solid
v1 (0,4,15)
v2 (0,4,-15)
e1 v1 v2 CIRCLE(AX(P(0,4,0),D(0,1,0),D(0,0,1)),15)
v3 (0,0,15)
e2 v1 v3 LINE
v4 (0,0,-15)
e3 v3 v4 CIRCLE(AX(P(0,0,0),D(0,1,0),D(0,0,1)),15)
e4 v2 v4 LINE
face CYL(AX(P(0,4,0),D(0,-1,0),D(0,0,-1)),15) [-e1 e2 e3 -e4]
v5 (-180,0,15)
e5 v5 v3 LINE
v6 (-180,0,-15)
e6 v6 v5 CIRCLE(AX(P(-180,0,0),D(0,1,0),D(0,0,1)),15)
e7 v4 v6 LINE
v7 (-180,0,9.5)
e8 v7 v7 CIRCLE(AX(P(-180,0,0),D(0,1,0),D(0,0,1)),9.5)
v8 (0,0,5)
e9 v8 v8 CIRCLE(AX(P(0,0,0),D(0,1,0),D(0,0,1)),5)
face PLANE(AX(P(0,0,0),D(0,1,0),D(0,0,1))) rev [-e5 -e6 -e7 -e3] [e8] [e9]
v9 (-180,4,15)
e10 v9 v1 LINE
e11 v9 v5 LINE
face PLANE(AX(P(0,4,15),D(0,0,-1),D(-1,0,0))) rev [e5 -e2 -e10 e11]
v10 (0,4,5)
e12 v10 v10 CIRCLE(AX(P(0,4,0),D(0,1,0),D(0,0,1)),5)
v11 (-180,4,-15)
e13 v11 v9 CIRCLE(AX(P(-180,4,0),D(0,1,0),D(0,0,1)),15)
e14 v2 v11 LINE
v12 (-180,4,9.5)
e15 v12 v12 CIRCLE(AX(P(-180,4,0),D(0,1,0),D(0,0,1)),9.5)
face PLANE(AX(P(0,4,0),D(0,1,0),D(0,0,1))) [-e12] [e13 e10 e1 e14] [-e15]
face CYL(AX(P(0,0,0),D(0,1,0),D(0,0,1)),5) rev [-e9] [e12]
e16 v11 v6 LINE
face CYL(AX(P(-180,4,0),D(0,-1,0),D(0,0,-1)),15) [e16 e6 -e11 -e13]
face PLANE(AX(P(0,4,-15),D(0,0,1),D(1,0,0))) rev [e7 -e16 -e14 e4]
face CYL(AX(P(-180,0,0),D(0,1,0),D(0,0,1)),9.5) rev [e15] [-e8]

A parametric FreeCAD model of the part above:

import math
import FreeCAD as App
import Part
import Sketcher
from FreeCAD import Vector
Q = App.Units.Quantity

doc = App.newDocument("Part")
body = doc.addObject("PartDesign::Body", "Body")

sketch1 = doc.addObject("Sketcher::SketchObject", "Sketch")
body.addObject(sketch1)
sketch1.AttachmentSupport = (doc.XZ_Plane, [""])
sketch1.MapMode = "FlatFace"
sketch1.addGeometry([
    Part.LineSegment(Vector(-180, 15, 0), Vector(0, 15, 0)),
    Part.ArcOfCircle(Part.Circle(Vector(0, 0, 0), Vector(0, 0, 1), 15), math.radians(-90), math.radians(90)),
    Part.LineSegment(Vector(0, -15, 0), Vector(-180, -15, 0)),
    Part.ArcOfCircle(Part.Circle(Vector(-180, 0, 0), Vector(0, 0, 1), 15), math.radians(90), math.radians(270)),
], False)
sketch1.addConstraint([
    Sketcher.Constraint("Tangent", 0, 2, 1, 2),
    Sketcher.Constraint("Tangent", 1, 1, 2, 1),
    Sketcher.Constraint("Tangent", 2, 2, 3, 2),
    Sketcher.Constraint("Tangent", 3, 1, 0, 1),
    Sketcher.Constraint("Horizontal", 0),
    Sketcher.Constraint("Horizontal", 2),
    Sketcher.Constraint("Coincident", 1, 3, -1, 1),
    Sketcher.Constraint("Radius", 1, Q("15 mm")),
    Sketcher.Constraint("DistanceX", 0, 1, 0, 2, Q("180 mm")),
])
pad1 = doc.addObject("PartDesign::Pad", "Pad")
body.addObject(pad1)
pad1.Profile = sketch1
pad1.Length = 4
pad1.Reversed = True

sketch2 = doc.addObject("Sketcher::SketchObject", "Sketch001")
body.addObject(sketch2)
sketch2.AttachmentSupport = (doc.XZ_Plane, [""])
sketch2.MapMode = "FlatFace"
sketch2.AttachmentOffset = App.Placement(Vector(0, 0, -4), App.Rotation())
sketch2.addGeometry([
    Part.Circle(Vector(0, 0, 0), Vector(0, 0, 1), 5),
    Part.Circle(Vector(-180, 0, 0), Vector(0, 0, 1), 9.5),
], False)
sketch2.addConstraint([
    Sketcher.Constraint("Coincident", 0, 3, -1, 1),
    Sketcher.Constraint("PointOnObject", 1, 3, -1),
    Sketcher.Constraint("Diameter", 0, Q("10 mm")),
    Sketcher.Constraint("Diameter", 1, Q("19 mm")),
    Sketcher.Constraint("DistanceX", 1, 3, -1, 1, Q("180 mm")),
])
pocket1 = doc.addObject("PartDesign::Pocket", "Pocket")
body.addObject(pocket1)
pocket1.Profile = sketch2
pocket1.Type = "ThroughAll"
pocket1.Reversed = True

doc.recompute()
